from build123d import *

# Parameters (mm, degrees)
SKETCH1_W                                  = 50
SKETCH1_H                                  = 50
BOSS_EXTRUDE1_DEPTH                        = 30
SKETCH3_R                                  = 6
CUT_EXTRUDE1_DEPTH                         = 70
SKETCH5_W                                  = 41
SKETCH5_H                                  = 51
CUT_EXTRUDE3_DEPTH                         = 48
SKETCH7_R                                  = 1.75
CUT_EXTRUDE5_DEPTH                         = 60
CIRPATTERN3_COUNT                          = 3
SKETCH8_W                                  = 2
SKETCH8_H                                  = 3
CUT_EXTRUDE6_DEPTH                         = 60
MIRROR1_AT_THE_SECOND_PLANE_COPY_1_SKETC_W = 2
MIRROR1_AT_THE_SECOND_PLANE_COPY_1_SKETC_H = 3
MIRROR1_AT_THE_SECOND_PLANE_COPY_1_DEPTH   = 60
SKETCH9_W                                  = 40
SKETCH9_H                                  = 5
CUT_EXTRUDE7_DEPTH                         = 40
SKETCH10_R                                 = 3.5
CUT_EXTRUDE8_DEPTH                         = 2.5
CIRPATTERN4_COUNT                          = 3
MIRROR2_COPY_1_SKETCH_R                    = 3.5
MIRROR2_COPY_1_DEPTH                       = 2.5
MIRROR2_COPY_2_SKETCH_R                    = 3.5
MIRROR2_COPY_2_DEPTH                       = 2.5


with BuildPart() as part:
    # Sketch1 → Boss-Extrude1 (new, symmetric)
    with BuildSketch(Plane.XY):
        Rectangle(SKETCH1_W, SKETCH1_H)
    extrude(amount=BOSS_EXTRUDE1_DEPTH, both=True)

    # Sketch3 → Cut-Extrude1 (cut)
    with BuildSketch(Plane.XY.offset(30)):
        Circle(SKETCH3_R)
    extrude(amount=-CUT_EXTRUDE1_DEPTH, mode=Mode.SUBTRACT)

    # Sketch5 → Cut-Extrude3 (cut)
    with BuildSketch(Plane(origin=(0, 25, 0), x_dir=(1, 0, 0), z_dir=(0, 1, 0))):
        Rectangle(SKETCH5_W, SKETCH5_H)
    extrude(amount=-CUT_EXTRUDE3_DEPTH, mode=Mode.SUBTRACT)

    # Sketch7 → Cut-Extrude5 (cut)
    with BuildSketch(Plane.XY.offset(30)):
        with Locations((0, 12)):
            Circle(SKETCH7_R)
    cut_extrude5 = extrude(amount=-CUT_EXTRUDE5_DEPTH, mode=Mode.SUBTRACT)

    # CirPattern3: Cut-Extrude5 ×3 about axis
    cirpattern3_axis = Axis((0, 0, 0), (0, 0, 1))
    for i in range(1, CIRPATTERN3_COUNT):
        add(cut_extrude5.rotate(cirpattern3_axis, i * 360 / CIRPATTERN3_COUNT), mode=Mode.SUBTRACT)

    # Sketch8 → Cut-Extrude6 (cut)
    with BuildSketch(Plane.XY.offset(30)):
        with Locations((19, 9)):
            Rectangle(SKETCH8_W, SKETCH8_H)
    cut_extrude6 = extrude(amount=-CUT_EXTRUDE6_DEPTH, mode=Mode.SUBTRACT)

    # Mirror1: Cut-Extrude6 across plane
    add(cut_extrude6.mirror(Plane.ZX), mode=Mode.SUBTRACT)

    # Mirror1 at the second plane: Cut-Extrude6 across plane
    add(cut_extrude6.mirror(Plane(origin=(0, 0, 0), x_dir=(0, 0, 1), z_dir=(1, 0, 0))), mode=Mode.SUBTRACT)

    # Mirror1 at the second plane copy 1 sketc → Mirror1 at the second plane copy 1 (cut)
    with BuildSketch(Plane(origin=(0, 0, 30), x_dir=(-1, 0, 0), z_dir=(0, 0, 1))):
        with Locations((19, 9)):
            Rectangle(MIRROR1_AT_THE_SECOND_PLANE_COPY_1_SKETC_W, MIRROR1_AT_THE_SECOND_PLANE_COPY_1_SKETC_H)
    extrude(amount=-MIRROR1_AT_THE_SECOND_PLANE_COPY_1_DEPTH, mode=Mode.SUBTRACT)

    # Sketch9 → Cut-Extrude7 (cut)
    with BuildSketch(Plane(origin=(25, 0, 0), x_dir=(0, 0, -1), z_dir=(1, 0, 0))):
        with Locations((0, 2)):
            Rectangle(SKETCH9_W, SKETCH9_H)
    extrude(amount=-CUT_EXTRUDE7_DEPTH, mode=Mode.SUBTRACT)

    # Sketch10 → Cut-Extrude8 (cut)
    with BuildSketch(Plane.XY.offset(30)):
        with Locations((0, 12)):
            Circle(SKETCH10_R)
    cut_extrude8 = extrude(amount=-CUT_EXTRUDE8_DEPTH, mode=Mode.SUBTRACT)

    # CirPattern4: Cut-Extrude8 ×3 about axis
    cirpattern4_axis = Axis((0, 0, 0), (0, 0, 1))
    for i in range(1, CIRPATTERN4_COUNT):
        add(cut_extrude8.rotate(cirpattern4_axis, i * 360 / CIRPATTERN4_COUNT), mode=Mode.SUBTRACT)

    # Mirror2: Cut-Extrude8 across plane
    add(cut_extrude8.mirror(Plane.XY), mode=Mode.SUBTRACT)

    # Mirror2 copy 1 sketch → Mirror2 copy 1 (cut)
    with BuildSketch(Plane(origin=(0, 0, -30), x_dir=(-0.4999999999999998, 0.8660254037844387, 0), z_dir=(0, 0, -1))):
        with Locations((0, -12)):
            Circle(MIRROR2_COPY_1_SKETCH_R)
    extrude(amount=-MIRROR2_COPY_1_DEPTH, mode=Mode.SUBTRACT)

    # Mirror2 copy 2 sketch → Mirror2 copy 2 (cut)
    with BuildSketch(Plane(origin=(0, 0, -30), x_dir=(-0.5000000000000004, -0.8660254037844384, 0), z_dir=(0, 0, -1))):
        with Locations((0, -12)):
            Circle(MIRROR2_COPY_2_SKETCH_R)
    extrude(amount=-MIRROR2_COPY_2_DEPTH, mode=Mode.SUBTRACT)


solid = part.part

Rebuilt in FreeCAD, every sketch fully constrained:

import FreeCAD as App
import Part
import Sketcher

doc = App.newDocument("Part")
body = doc.addObject("PartDesign::Body", "Body")

# Sketch on XY plane
sketch1 = body.newObject("Sketcher::SketchObject", "Sketch")
sketch1.AttachmentSupport = (doc.getObject("XY_Plane"), [""])
sketch1.MapMode = "FlatFace"
sketch1.addGeometry([
    Part.LineSegment(App.Vector(-25, 25, 0), App.Vector(-25, -25, 0)),
    Part.LineSegment(App.Vector(-25, -25, 0), App.Vector(25, -25, 0)),
    Part.LineSegment(App.Vector(25, -25, 0), App.Vector(25, 25, 0)),
    Part.LineSegment(App.Vector(25, 25, 0), App.Vector(-25, 25, 0)),
], False)
sketch1.addConstraint([
    Sketcher.Constraint("Coincident", 0, 2, 1, 1),
    Sketcher.Constraint("Coincident", 1, 2, 2, 1),
    Sketcher.Constraint("Coincident", 2, 2, 3, 1),
    Sketcher.Constraint("Coincident", 3, 2, 0, 1),
    Sketcher.Constraint("Vertical", 0),
    Sketcher.Constraint("Horizontal", 1),
    Sketcher.Constraint("Vertical", 2),
    Sketcher.Constraint("Horizontal", 3),
    Sketcher.Constraint("Symmetric", 0, 2, 2, 2, -1, 1),
    Sketcher.Constraint("Equal", 3, 0),
    Sketcher.Constraint("DistanceX", 1, 1, 1, 2, 50.0),
])
pad1 = body.newObject("PartDesign::Pad", "Pad")
pad1.Profile = sketch1
pad1.Length = 60
pad1.Midplane = True

# Sketch on XY plane
sketch2 = body.newObject("Sketcher::SketchObject", "Sketch001")
sketch2.AttachmentSupport = (doc.getObject("XY_Plane"), [""])
sketch2.MapMode = "FlatFace"
sketch2.AttachmentOffset = App.Placement(App.Vector(0, 0, 30), App.Rotation())
sketch2.addGeometry(Part.Circle(App.Vector(0, 0, 0), App.Vector(0, 0, 1), 6), False)
sketch2.addConstraint([
    Sketcher.Constraint("Coincident", 0, 3, -1, 1),
    Sketcher.Constraint("Diameter", 0, 12.0),
])
pocket1 = body.newObject("PartDesign::Pocket", "Pocket")
pocket1.Profile = sketch2
pocket1.Length = 70

# Sketch on XZ plane
sketch3 = body.newObject("Sketcher::SketchObject", "Sketch002")
sketch3.AttachmentSupport = (doc.getObject("XZ_Plane"), [""])
sketch3.MapMode = "FlatFace"
sketch3.AttachmentOffset = App.Placement(App.Vector(0, 0, -25), App.Rotation())
sketch3.addGeometry([
    Part.LineSegment(App.Vector(-20, -26, 0), App.Vector(-20, 26, 0)),
    Part.LineSegment(App.Vector(-20, 26, 0), App.Vector(20, 26, 0)),
    Part.LineSegment(App.Vector(20, 26, 0), App.Vector(20, -26, 0)),
    Part.LineSegment(App.Vector(20, -26, 0), App.Vector(-20, -26, 0)),
], False)
sketch3.addConstraint([
    Sketcher.Constraint("Coincident", 0, 2, 1, 1),
    Sketcher.Constraint("Coincident", 1, 2, 2, 1),
    Sketcher.Constraint("Coincident", 2, 2, 3, 1),
    Sketcher.Constraint("Coincident", 3, 2, 0, 1),
    Sketcher.Constraint("Vertical", 0),
    Sketcher.Constraint("Horizontal", 1),
    Sketcher.Constraint("Vertical", 2),
    Sketcher.Constraint("Horizontal", 3),
    Sketcher.Constraint("Symmetric", 0, 2, 2, 2, -1, 1),
    Sketcher.Constraint("DistanceX", 1, 1, 1, 2, 41.0),
    Sketcher.Constraint("DistanceY", 0, 1, 0, 2, 51.0),
])
pocket2 = body.newObject("PartDesign::Pocket", "Pocket001")
pocket2.Profile = sketch3
pocket2.Length = 48
pocket2.Reversed = True

# Sketch on XY plane
sketch4 = body.newObject("Sketcher::SketchObject", "Sketch003")
sketch4.AttachmentSupport = (doc.getObject("XY_Plane"), [""])
sketch4.MapMode = "FlatFace"
sketch4.AttachmentOffset = App.Placement(App.Vector(0, 0, 30), App.Rotation())
sketch4.addGeometry(Part.Circle(App.Vector(0, 12, 0), App.Vector(0, 0, 1), 1.8), False)
sketch4.addConstraint([
    Sketcher.Constraint("PointOnObject", 0, 3, -2),
    Sketcher.Constraint("Diameter", 0, 3.5),
    Sketcher.Constraint("DistanceY", -1, 1, 0, 3, 12.0),
])
pocket3 = body.newObject("PartDesign::Pocket", "Pocket002")
pocket3.Profile = sketch4
pocket3.Length = 60
doc.recompute()

polarpattern = body.newObject("PartDesign::PolarPattern", "PolarPattern")
polarpattern.Originals = [pocket3]
polarpattern.Axis = (doc.getObject("Z_Axis"), [""])
polarpattern.Angle = 360
polarpattern.Occurrences = 3
body.Tip = polarpattern

# Sketch on XY plane
sketch5 = body.newObject("Sketcher::SketchObject", "Sketch004")
sketch5.AttachmentSupport = (doc.getObject("XY_Plane"), [""])
sketch5.MapMode = "FlatFace"
sketch5.AttachmentOffset = App.Placement(App.Vector(0, 0, 30), App.Rotation())
sketch5.addGeometry([
    Part.LineSegment(App.Vector(18, 10.5, 0), App.Vector(18, 7.5, 0)),
    Part.LineSegment(App.Vector(18, 7.5, 0), App.Vector(20, 7.5, 0)),
    Part.LineSegment(App.Vector(20, 7.5, 0), App.Vector(20, 10.5, 0)),
    Part.LineSegment(App.Vector(20, 10.5, 0), App.Vector(18, 10.5, 0)),
], False)
sketch5.addConstraint([
    Sketcher.Constraint("Coincident", 0, 2, 1, 1),
    Sketcher.Constraint("Coincident", 1, 2, 2, 1),
    Sketcher.Constraint("Coincident", 2, 2, 3, 1),
    Sketcher.Constraint("Coincident", 3, 2, 0, 1),
    Sketcher.Constraint("Vertical", 0),
    Sketcher.Constraint("Horizontal", 1),
    Sketcher.Constraint("Vertical", 2),
    Sketcher.Constraint("Horizontal", 3),
    Sketcher.Constraint("DistanceX", 1, 1, 1, 2, 2.0),
    Sketcher.Constraint("DistanceY", 0, 2, 0, 1, 3.0),
    Sketcher.Constraint("DistanceX", -1, 1, 0, 2, 18.0),
    Sketcher.Constraint("DistanceY", -1, 1, 0, 2, 7.5),
])
pocket4 = body.newObject("PartDesign::Pocket", "Pocket003")
pocket4.Profile = sketch5
pocket4.Length = 60
doc.recompute()

mirrored = body.newObject("PartDesign::Mirrored", "Mirrored")
mirrored.Originals = [pocket4]
mirrored.MirrorPlane = (doc.getObject("XZ_Plane"), [""])
body.Tip = mirrored
doc.recompute()

mirrored2 = body.newObject("PartDesign::Mirrored", "Mirrored001")
mirrored2.Originals = [pocket4]
mirrored2.MirrorPlane = (doc.getObject("YZ_Plane"), [""])
body.Tip = mirrored2

# Sketch on XY plane
sketch6 = body.newObject("Sketcher::SketchObject", "Sketch005")
sketch6.AttachmentSupport = (doc.getObject("XY_Plane"), [""])
sketch6.MapMode = "FlatFace"
sketch6.AttachmentOffset = App.Placement(App.Vector(0, 0, 30), App.Rotation())
sketch6.addGeometry([
    Part.LineSegment(App.Vector(-18, -10.5, 0), App.Vector(-18, -7.5, 0)),
    Part.LineSegment(App.Vector(-18, -7.5, 0), App.Vector(-20, -7.5, 0)),
    Part.LineSegment(App.Vector(-20, -7.5, 0), App.Vector(-20, -10.5, 0)),
    Part.LineSegment(App.Vector(-20, -10.5, 0), App.Vector(-18, -10.5, 0)),
], False)
sketch6.addConstraint([
    Sketcher.Constraint("Coincident", 0, 2, 1, 1),
    Sketcher.Constraint("Coincident", 1, 2, 2, 1),
    Sketcher.Constraint("Coincident", 2, 2, 3, 1),
    Sketcher.Constraint("Coincident", 3, 2, 0, 1),
    Sketcher.Constraint("Vertical", 0),
    Sketcher.Constraint("Horizontal", 1),
    Sketcher.Constraint("Vertical", 2),
    Sketcher.Constraint("Horizontal", 3),
    Sketcher.Constraint("DistanceX", 1, 2, 1, 1, 2.0),
    Sketcher.Constraint("DistanceY", 0, 1, 0, 2, 3.0),
    Sketcher.Constraint("DistanceX", 0, 2, -1, 1, 18.0),
    Sketcher.Constraint("DistanceY", 0, 2, -1, 1, 7.5),
])
pocket5 = body.newObject("PartDesign::Pocket", "Pocket004")
pocket5.Profile = sketch6
pocket5.Length = 60

# Sketch on YZ plane
sketch7 = body.newObject("Sketcher::SketchObject", "Sketch006")
sketch7.AttachmentSupport = (doc.getObject("YZ_Plane"), [""])
sketch7.MapMode = "FlatFace"
sketch7.AttachmentOffset = App.Placement(App.Vector(0, 0, 25), App.Rotation())
sketch7.addGeometry([
    Part.LineSegment(App.Vector(4, 20, 0), App.Vector(0, 20, 0)),
    Part.LineSegment(App.Vector(0, 20, 0), App.Vector(0, -20, 0)),
    Part.LineSegment(App.Vector(0, -20, 0), App.Vector(4, -20, 0)),
    Part.LineSegment(App.Vector(4, -20, 0), App.Vector(4, 20, 0)),
], False)
sketch7.addConstraint([
    Sketcher.Constraint("Coincident", 0, 2, 1, 1),
    Sketcher.Constraint("Coincident", 1, 2, 2, 1),
    Sketcher.Constraint("Coincident", 2, 2, 3, 1),
    Sketcher.Constraint("Coincident", 3, 2, 0, 1),
    Sketcher.Constraint("Horizontal", 0),
    Sketcher.Constraint("Vertical", 1),
    Sketcher.Constraint("Horizontal", 2),
    Sketcher.Constraint("Vertical", 3),
    Sketcher.Constraint("DistanceX", 0, 2, 0, 1, 5.0),
    Sketcher.Constraint("DistanceY", 1, 2, 1, 1, 40.0),
    Sketcher.Constraint("DistanceY", -1, 1, 0, 2, 20.0),
    Sketcher.Constraint("DistanceX", 0, 2, -1, 1, 0.5),
])
pocket6 = body.newObject("PartDesign::Pocket", "Pocket005")
pocket6.Profile = sketch7
pocket6.Length = 40

# Sketch on XY plane
sketch8 = body.newObject("Sketcher::SketchObject", "Sketch007")
sketch8.AttachmentSupport = (doc.getObject("XY_Plane"), [""])
sketch8.MapMode = "FlatFace"
sketch8.AttachmentOffset = App.Placement(App.Vector(0, 0, 30), App.Rotation())
sketch8.addGeometry(Part.Circle(App.Vector(0, 12, 0), App.Vector(0, 0, 1), 3.5), False)
sketch8.addConstraint([
    Sketcher.Constraint("PointOnObject", 0, 3, -2),
    Sketcher.Constraint("Diameter", 0, 7.0),
    Sketcher.Constraint("DistanceY", -1, 1, 0, 3, 12.0),
])
pocket7 = body.newObject("PartDesign::Pocket", "Pocket006")
pocket7.Profile = sketch8
pocket7.Length = 2.5
doc.recompute()

polarpattern2 = body.newObject("PartDesign::PolarPattern", "PolarPattern001")
polarpattern2.Originals = [pocket7]
polarpattern2.Axis = (doc.getObject("Z_Axis"), [""])
polarpattern2.Angle = 360
polarpattern2.Occurrences = 3
body.Tip = polarpattern2
doc.recompute()

mirrored3 = body.newObject("PartDesign::Mirrored", "Mirrored002")
mirrored3.Originals = [pocket7]
mirrored3.MirrorPlane = (doc.getObject("XY_Plane"), [""])
body.Tip = mirrored3

# Sketch on XY plane
sketch9 = body.newObject("Sketcher::SketchObject", "Sketch008")
sketch9.AttachmentSupport = (doc.getObject("XY_Plane"), [""])
sketch9.MapMode = "FlatFace"
sketch9.AttachmentOffset = App.Placement(App.Vector(0, 0, -30), App.Rotation())
sketch9.addGeometry(Part.Circle(App.Vector(-10.4, -6, 0), App.Vector(0, 0, 1), 3.5), False)
sketch9.addConstraint([
    Sketcher.Constraint("Diameter", 0, 7.0),
    Sketcher.Constraint("DistanceY", 0, 3, -1, 1, 6.0),
    Sketcher.Constraint("DistanceX", 0, 3, -1, 1, 10.392305),
])
pocket8 = body.newObject("PartDesign::Pocket", "Pocket007")
pocket8.Profile = sketch9
pocket8.Length = 2.5
pocket8.Reversed = True

# Sketch on XY plane
sketch10 = body.newObject("Sketcher::SketchObject", "Sketch009")
sketch10.AttachmentSupport = (doc.getObject("XY_Plane"), [""])
sketch10.MapMode = "FlatFace"
sketch10.AttachmentOffset = App.Placement(App.Vector(0, 0, -30), App.Rotation())
sketch10.addGeometry(Part.Circle(App.Vector(10.4, -6, 0), App.Vector(0, 0, 1), 3.5), False)
sketch10.addConstraint([
    Sketcher.Constraint("Diameter", 0, 7.0),
    Sketcher.Constraint("DistanceY", 0, 3, -1, 1, 6.0),
    Sketcher.Constraint("DistanceX", -1, 1, 0, 3, 10.392305),
])
pocket9 = body.newObject("PartDesign::Pocket", "Pocket008")
pocket9.Profile = sketch10
pocket9.Length = 2.5
pocket9.Reversed = True

doc.recompute()
